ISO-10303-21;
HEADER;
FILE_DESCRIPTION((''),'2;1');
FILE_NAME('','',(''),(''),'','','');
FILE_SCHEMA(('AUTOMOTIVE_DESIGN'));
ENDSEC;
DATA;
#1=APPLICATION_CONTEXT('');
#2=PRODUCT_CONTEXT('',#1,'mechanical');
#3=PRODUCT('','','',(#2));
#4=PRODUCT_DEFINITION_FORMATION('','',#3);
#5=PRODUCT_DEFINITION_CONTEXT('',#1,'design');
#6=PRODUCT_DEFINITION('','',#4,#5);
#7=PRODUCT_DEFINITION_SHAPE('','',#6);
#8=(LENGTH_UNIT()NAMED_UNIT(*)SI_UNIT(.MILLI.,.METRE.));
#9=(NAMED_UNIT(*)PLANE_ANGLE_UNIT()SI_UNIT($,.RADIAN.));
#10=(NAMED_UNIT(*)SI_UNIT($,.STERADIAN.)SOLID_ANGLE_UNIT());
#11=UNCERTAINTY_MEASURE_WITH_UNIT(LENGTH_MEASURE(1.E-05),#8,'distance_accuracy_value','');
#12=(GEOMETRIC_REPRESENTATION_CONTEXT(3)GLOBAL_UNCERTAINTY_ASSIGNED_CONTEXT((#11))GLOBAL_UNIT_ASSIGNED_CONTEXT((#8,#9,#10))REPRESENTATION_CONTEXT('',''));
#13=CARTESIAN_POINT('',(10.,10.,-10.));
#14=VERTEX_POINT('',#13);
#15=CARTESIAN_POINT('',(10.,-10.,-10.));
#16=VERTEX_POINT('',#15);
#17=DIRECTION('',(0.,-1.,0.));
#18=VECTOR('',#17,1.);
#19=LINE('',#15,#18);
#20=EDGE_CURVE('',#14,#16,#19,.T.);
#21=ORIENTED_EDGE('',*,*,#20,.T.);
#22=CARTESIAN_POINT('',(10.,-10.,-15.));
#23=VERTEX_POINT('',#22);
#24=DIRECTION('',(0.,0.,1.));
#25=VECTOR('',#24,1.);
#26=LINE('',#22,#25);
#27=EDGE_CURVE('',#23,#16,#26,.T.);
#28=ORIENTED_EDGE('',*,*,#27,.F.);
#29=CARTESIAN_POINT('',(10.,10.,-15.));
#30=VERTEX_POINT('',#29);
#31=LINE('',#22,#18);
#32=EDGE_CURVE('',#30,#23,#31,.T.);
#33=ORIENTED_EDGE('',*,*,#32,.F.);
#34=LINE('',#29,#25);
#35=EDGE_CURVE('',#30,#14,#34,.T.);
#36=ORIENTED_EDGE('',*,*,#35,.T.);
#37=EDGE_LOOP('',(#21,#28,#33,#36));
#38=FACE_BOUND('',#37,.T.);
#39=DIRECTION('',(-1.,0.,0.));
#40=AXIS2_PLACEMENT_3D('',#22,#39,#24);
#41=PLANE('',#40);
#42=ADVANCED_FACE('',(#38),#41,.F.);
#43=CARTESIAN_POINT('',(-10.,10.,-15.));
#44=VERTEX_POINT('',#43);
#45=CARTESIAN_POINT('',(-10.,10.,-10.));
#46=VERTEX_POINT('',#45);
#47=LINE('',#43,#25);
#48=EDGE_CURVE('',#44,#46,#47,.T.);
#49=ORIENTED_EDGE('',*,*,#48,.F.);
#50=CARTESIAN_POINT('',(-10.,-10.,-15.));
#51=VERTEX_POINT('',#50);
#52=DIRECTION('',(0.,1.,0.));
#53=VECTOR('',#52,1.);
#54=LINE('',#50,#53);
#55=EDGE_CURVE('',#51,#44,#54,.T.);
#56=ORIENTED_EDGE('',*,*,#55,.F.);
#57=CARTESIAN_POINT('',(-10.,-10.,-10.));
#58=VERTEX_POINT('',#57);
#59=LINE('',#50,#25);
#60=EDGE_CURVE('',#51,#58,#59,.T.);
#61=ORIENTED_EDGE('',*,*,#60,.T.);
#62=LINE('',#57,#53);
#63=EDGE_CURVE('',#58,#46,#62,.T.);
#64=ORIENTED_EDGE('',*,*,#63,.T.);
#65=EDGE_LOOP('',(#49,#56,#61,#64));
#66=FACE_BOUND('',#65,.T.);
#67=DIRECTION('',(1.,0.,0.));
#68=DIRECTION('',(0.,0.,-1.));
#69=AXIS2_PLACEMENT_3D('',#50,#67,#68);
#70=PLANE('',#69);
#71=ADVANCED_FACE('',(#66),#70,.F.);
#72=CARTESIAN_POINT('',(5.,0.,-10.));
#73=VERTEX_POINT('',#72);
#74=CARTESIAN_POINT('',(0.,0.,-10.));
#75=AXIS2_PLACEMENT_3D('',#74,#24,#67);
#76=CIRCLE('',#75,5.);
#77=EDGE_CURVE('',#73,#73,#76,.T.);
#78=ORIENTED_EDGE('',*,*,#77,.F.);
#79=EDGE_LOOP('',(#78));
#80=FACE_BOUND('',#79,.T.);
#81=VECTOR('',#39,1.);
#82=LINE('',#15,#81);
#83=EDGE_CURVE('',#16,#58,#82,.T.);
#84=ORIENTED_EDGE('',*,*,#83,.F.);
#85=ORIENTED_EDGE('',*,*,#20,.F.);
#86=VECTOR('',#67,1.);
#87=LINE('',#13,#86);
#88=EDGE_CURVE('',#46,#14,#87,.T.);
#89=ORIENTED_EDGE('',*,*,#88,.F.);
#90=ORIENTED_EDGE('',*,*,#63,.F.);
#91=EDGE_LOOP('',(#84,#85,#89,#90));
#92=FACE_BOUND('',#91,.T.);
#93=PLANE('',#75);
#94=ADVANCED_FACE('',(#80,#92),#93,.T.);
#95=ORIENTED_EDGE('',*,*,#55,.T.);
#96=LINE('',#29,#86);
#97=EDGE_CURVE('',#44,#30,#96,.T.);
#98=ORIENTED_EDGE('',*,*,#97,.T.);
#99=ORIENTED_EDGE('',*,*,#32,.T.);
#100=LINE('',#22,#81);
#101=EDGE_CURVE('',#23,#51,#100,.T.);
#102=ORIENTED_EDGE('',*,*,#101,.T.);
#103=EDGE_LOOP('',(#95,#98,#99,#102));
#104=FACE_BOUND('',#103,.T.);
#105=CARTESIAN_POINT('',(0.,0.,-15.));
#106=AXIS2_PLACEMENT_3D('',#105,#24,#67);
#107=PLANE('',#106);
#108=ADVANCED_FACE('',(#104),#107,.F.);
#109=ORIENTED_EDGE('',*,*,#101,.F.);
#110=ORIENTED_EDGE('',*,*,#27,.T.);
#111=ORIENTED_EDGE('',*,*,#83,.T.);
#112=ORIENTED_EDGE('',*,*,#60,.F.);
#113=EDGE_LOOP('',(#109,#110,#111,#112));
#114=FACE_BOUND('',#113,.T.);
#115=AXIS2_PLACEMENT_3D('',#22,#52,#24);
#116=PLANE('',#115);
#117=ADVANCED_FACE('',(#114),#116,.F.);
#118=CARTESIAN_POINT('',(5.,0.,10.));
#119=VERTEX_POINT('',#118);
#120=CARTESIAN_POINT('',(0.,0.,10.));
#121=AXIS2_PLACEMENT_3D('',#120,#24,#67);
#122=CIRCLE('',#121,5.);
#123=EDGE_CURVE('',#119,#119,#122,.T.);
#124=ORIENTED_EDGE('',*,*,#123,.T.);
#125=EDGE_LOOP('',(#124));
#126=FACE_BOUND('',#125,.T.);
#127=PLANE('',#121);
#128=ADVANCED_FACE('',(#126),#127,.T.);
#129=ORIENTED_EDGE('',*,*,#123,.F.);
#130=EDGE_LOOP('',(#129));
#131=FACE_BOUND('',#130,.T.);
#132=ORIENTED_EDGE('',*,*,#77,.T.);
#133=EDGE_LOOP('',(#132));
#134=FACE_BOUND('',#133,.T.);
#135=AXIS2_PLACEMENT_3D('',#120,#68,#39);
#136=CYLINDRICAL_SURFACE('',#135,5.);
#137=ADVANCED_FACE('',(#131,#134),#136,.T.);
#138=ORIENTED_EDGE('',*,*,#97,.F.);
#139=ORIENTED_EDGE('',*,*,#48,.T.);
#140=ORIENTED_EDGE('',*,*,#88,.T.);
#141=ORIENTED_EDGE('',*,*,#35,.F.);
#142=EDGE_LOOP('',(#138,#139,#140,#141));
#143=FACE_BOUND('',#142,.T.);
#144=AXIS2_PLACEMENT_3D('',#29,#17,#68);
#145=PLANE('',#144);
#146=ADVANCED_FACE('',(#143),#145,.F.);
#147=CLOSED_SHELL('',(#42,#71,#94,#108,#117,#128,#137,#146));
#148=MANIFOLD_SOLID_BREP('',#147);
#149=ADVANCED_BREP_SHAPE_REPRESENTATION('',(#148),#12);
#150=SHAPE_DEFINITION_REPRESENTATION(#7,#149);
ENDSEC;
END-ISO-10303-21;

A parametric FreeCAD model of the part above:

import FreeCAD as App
import Part
import Sketcher

V = App.Vector

doc = App.newDocument("Part")
body = doc.addObject("PartDesign::Body", "Body")

# Sketch on XY plane
sketch1 = body.newObject("Sketcher::SketchObject", "Sketch")
sketch1.AttachmentSupport = (doc.getObject("XY_Plane"), [""])
sketch1.MapMode = "FlatFace"
sketch1.addGeometry(Part.Circle(V(0, 0, 0), V(0, 0, 1), 5), False)
sketch1.addConstraint([
    Sketcher.Constraint("Coincident", 0, 3, -1, 1),
    Sketcher.Constraint("Diameter", 0, 10.0),
])
pad1 = body.newObject("PartDesign::Pad", "Pad")
pad1.Profile = sketch1
pad1.Length = 20
pad1.Midplane = True

# Sketch on XY plane
sketch2 = body.newObject("Sketcher::SketchObject", "Sketch001")
sketch2.AttachmentSupport = (doc.getObject("XY_Plane"), [""])
sketch2.MapMode = "FlatFace"
sketch2.AttachmentOffset = App.Placement(V(0, 0, -10), App.Rotation())
sketch2.addGeometry([
    Part.LineSegment(V(10, 10, 0), V(10, -10, 0)),
    Part.LineSegment(V(10, -10, 0), V(-10, -10, 0)),
    Part.LineSegment(V(-10, -10, 0), V(-10, 10, 0)),
    Part.LineSegment(V(-10, 10, 0), V(10, 10, 0)),
], False)
sketch2.addConstraint([
    Sketcher.Constraint("Coincident", 0, 2, 1, 1),
    Sketcher.Constraint("Coincident", 1, 2, 2, 1),
    Sketcher.Constraint("Coincident", 2, 2, 3, 1),
    Sketcher.Constraint("Coincident", 3, 2, 0, 1),
    Sketcher.Constraint("Vertical", 0),
    Sketcher.Constraint("Horizontal", 1),
    Sketcher.Constraint("Vertical", 2),
    Sketcher.Constraint("Horizontal", 3),
    Sketcher.Constraint("Symmetric", 0, 2, 2, 2, -1, 1),
    Sketcher.Constraint("Equal", 3, 0),
    Sketcher.Constraint("DistanceX", 1, 2, 1, 1, 20.0),
])
pad2 = body.newObject("PartDesign::Pad", "Pad001")
pad2.Profile = sketch2
pad2.Length = 5
pad2.Reversed = True

doc.recompute()
